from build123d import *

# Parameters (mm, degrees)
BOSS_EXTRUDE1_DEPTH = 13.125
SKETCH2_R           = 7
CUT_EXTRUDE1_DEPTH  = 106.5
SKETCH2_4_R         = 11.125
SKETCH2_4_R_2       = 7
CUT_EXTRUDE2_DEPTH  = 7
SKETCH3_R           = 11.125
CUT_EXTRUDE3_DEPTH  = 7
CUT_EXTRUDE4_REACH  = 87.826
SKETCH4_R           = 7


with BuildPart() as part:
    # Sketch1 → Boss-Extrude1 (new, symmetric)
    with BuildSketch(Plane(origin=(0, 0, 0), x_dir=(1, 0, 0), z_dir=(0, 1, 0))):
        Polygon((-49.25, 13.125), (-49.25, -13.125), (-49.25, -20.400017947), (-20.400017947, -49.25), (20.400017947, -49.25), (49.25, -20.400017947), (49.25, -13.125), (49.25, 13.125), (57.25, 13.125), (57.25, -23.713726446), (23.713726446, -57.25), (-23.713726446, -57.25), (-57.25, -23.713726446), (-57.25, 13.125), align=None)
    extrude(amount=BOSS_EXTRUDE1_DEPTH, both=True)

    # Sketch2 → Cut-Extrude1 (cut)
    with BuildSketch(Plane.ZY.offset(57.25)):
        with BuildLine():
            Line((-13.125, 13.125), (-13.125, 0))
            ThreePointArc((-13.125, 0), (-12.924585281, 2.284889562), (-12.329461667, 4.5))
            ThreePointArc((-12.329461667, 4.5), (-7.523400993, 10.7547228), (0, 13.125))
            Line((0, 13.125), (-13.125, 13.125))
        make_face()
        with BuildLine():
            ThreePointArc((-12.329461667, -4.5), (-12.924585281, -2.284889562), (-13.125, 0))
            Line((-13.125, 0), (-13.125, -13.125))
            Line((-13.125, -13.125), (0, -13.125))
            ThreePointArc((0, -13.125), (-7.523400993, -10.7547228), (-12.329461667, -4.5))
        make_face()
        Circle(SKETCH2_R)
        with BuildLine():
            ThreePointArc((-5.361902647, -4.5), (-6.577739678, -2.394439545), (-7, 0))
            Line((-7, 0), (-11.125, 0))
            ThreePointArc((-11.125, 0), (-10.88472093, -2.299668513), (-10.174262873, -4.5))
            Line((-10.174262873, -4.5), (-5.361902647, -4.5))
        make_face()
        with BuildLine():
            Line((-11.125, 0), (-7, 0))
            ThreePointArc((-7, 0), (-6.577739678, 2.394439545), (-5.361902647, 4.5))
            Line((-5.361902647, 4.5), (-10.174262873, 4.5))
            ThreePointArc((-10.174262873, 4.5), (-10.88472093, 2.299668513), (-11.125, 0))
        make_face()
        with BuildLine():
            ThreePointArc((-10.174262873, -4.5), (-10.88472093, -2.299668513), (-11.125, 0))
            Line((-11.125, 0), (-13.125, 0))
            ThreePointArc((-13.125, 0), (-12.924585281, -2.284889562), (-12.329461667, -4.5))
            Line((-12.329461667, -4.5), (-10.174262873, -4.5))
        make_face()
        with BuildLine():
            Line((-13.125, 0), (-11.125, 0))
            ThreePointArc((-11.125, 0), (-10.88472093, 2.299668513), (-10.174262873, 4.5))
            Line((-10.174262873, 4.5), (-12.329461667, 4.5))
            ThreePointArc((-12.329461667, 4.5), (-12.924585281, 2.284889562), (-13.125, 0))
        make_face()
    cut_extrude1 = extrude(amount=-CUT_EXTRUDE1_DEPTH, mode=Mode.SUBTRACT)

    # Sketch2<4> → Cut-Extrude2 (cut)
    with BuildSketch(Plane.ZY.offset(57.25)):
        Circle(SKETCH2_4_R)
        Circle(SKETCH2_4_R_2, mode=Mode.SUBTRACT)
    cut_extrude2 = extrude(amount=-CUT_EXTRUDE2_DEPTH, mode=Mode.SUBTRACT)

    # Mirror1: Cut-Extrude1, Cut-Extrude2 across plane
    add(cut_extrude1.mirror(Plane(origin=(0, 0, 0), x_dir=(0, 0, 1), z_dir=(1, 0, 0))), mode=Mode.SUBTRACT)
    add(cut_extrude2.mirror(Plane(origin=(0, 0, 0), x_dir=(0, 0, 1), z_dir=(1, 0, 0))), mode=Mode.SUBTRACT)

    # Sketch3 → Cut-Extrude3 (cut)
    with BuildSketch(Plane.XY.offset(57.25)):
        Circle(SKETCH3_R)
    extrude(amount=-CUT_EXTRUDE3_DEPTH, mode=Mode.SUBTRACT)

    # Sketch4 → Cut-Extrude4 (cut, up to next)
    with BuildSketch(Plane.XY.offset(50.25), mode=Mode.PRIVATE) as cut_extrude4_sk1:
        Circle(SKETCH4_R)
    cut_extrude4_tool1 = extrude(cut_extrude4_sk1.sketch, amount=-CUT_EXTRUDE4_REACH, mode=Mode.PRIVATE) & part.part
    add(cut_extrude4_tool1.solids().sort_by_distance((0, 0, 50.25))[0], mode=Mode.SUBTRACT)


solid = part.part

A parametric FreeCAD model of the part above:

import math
import FreeCAD as App
import Part
import Sketcher

doc = App.newDocument("Part")
body = doc.addObject("PartDesign::Body", "Body")

# Sketch on XZ plane
sketch1 = body.newObject("Sketcher::SketchObject", "Sketch")
sketch1.AttachmentSupport = (doc.getObject("XZ_Plane"), [""])
sketch1.MapMode = "FlatFace"
sketch1.addGeometry([
    Part.LineSegment(App.Vector(-49, 20, 0), App.Vector(-49, -13, 0)),  # 0
    Part.LineSegment(App.Vector(-49, -13, 0), App.Vector(-57, -13, 0)),  # 1
    Part.LineSegment(App.Vector(-57, -13, 0), App.Vector(-57, 24, 0)),  # 2
    Part.LineSegment(App.Vector(-57, 24, 0), App.Vector(-24, 57, 0)),  # 3
    Part.LineSegment(App.Vector(-24, 57, 0), App.Vector(24, 57, 0)),  # 4
    Part.LineSegment(App.Vector(24, 57, 0), App.Vector(57, 24, 0)),  # 5
    Part.LineSegment(App.Vector(57, 24, 0), App.Vector(57, -13, 0)),  # 6
    Part.LineSegment(App.Vector(57, -13, 0), App.Vector(49, -13, 0)),  # 7
    Part.LineSegment(App.Vector(49, -13, 0), App.Vector(49, 20, 0)),  # 8
    Part.LineSegment(App.Vector(49, 20, 0), App.Vector(20, 49, 0)),  # 9
    Part.LineSegment(App.Vector(20, 49, 0), App.Vector(-20, 49, 0)),  # 10
    Part.LineSegment(App.Vector(-20, 49, 0), App.Vector(-49, 20, 0)),  # 11
], False)
sketch1.addConstraint([
    Sketcher.Constraint("Coincident", 0, 2, 1, 1),
    Sketcher.Constraint("Coincident", 1, 2, 2, 1),
    Sketcher.Constraint("Coincident", 2, 2, 3, 1),
    Sketcher.Constraint("Coincident", 3, 2, 4, 1),
    Sketcher.Constraint("Coincident", 4, 2, 5, 1),
    Sketcher.Constraint("Coincident", 5, 2, 6, 1),
    Sketcher.Constraint("Coincident", 6, 2, 7, 1),
    Sketcher.Constraint("Coincident", 7, 2, 8, 1),
    Sketcher.Constraint("Coincident", 8, 2, 9, 1),
    Sketcher.Constraint("Coincident", 9, 2, 10, 1),
    Sketcher.Constraint("Coincident", 10, 2, 11, 1),
    Sketcher.Constraint("Coincident", 11, 2, 0, 1),
    Sketcher.Constraint("Vertical", 0),
    Sketcher.Constraint("Horizontal", 1),
    Sketcher.Constraint("Vertical", 2),
    Sketcher.Constraint("Horizontal", 4),
    Sketcher.Constraint("Vertical", 6),
    Sketcher.Constraint("Horizontal", 7),
    Sketcher.Constraint("Vertical", 8),
    Sketcher.Constraint("Horizontal", 10),
    Sketcher.Constraint("Symmetric", 2, 2, 5, 2, -2),
    Sketcher.Constraint("Symmetric", 0, 2, 7, 2, -2),
    Sketcher.Constraint("Perpendicular", 3, 5),
    Sketcher.Constraint("Parallel", 5, 9),
    Sketcher.Constraint("Perpendicular", 9, 11),
    Sketcher.Constraint("Horizontal", 8, 2, 11, 2),
    Sketcher.Constraint("Equal", 3, 5),
    Sketcher.Constraint("DistanceX", 1, 2, 1, 1, 8.0),
    Sketcher.Constraint("DistanceY", 9, 2, 4, 2, 8.0),
    Sketcher.Constraint("DistanceX", 0, 2, 5, 2, 106.5),
    Sketcher.Constraint("DistanceY", -1, 1, 3, 2, 57.25),
    Sketcher.Constraint("DistanceY", 0, 2, -1, 1, 13.125),
    Sketcher.Constraint("DistanceX", 4, 1, 4, 2, 47.427453),
    Sketcher.Constraint("DistanceX", 10, 2, 10, 1, 40.800036),
])
pad1 = body.newObject("PartDesign::Pad", "Pad")
pad1.Profile = sketch1
pad1.Length = 26.25
pad1.Midplane = True

# Sketch on YZ plane
sketch2 = body.newObject("Sketcher::SketchObject", "Sketch001")
sketch2.AttachmentSupport = (doc.getObject("YZ_Plane"), [""])
sketch2.MapMode = "FlatFace"
sketch2.AttachmentOffset = App.Placement(App.Vector(0, 0, -57.25), App.Rotation())
sketch2.addGeometry([
    Part.LineSegment(App.Vector(13, -13, 0), App.Vector(-13, -13, 0)),  # 0
    Part.LineSegment(App.Vector(-13, -13, 0), App.Vector(-13, 0, 0)),  # 1
    Part.ArcOfCircle(Part.Circle(App.Vector(0, 0, 0), App.Vector(0, 0, 1), 13), math.radians(180), math.radians(250)),  # 2
    Part.LineSegment(App.Vector(-4, -12, 0), App.Vector(-4, -5, 0)),  # 3
    Part.ArcOfCircle(Part.Circle(App.Vector(0, 0, 0), App.Vector(0, 0, 1), 7), math.radians(-50), math.radians(230)),  # 4
    Part.LineSegment(App.Vector(4, -5, 0), App.Vector(4, -12, 0)),  # 5
    Part.ArcOfCircle(Part.Circle(App.Vector(0, 0, 0), App.Vector(0, 0, 1), 13), math.radians(-70), math.radians(0)),  # 6
    Part.LineSegment(App.Vector(13, 0, 0), App.Vector(13, -13, 0)),  # 7
], False)
sketch2.addConstraint([
    Sketcher.Constraint("Coincident", 0, 2, 1, 1),
    Sketcher.Constraint("Tangent", 1, 2, 2, 1),
    Sketcher.Constraint("Coincident", 2, 2, 3, 1),
    Sketcher.Constraint("Coincident", 3, 2, 4, 2),
    Sketcher.Constraint("Coincident", 4, 1, 5, 1),
    Sketcher.Constraint("Coincident", 5, 2, 6, 1),
    Sketcher.Constraint("Tangent", 6, 2, 7, 1),
    Sketcher.Constraint("Coincident", 7, 2, 0, 1),
    Sketcher.Constraint("Horizontal", 0),
    Sketcher.Constraint("Vertical", 1),
    Sketcher.Constraint("Vertical", 3),
    Sketcher.Constraint("Vertical", 5),
    Sketcher.Constraint("Vertical", 7),
    Sketcher.Constraint("Coincident", 2, 3, -1, 1),
    Sketcher.Constraint("Coincident", 4, 3, -1, 1),
    Sketcher.Constraint("Coincident", 6, 3, -1, 1),
    Sketcher.Constraint("Equal", 2, 6),
    Sketcher.Constraint("Horizontal", 3, 2, 4, 1),
    Sketcher.Constraint("Radius", 4, 7.0),
    Sketcher.Constraint("Radius", 2, 13.125),
    Sketcher.Constraint("DistanceX", 3, 2, 4, 1, 9.0),
    Sketcher.Constraint("DistanceY", 1, 1, 1, 2, 13.125),
])
pocket1 = body.newObject("PartDesign::Pocket", "Pocket")
pocket1.Profile = sketch2
pocket1.Length = 106.5
pocket1.Reversed = True

# Sketch on YZ plane
sketch3 = body.newObject("Sketcher::SketchObject", "Sketch002")
sketch3.AttachmentSupport = (doc.getObject("YZ_Plane"), [""])
sketch3.MapMode = "FlatFace"
sketch3.AttachmentOffset = App.Placement(App.Vector(0, 0, -57.25), App.Rotation())
sketch3.addGeometry([
    Part.Circle(App.Vector(0, 0, 0), App.Vector(0, 0, 1), 11),
    Part.Circle(App.Vector(0, 0, 0), App.Vector(0, 0, 1), 7),
], False)
sketch3.addConstraint([
    Sketcher.Constraint("Coincident", 0, 3, -1, 1),
    Sketcher.Constraint("Coincident", 1, 3, -1, 1),
    Sketcher.Constraint("Diameter", 1, 14.0),
    Sketcher.Constraint("Diameter", 0, 22.25),
])
pocket2 = body.newObject("PartDesign::Pocket", "Pocket001")
pocket2.Profile = sketch3
pocket2.Length = 7
pocket2.Reversed = True
doc.recompute()

mirrored = body.newObject("PartDesign::Mirrored", "Mirrored")
mirrored.Originals = [pocket1, pocket2]
mirrored.MirrorPlane = (doc.getObject("YZ_Plane"), [""])
body.Tip = mirrored

# Sketch on XY plane
sketch4 = body.newObject("Sketcher::SketchObject", "Sketch003")
sketch4.AttachmentSupport = (doc.getObject("XY_Plane"), [""])
sketch4.MapMode = "FlatFace"
sketch4.AttachmentOffset = App.Placement(App.Vector(0, 0, 57.25), App.Rotation())
sketch4.addGeometry(Part.Circle(App.Vector(0, 0, 0), App.Vector(0, 0, 1), 11), False)
sketch4.addConstraint([
    Sketcher.Constraint("Coincident", 0, 3, -1, 1),
    Sketcher.Constraint("Diameter", 0, 22.25),
])
pocket3 = body.newObject("PartDesign::Pocket", "Pocket002")
pocket3.Profile = sketch4
pocket3.Length = 7

# Sketch on XY plane
sketch5 = body.newObject("Sketcher::SketchObject", "Sketch004")
sketch5.AttachmentSupport = (doc.getObject("XY_Plane"), [""])
sketch5.MapMode = "FlatFace"
sketch5.AttachmentOffset = App.Placement(App.Vector(0, 0, 50.25), App.Rotation())
sketch5.addGeometry(Part.Circle(App.Vector(0, 0, 0), App.Vector(0, 0, 1), 7), False)
sketch5.addConstraint([
    Sketcher.Constraint("Coincident", 0, 3, -1, 1),
    Sketcher.Constraint("Diameter", 0, 14.0),
])
pocket4 = body.newObject("PartDesign::Pocket", "Pocket003")
pocket4.Profile = sketch5
pocket4.Type = "UpToFirst"

doc.recompute()
